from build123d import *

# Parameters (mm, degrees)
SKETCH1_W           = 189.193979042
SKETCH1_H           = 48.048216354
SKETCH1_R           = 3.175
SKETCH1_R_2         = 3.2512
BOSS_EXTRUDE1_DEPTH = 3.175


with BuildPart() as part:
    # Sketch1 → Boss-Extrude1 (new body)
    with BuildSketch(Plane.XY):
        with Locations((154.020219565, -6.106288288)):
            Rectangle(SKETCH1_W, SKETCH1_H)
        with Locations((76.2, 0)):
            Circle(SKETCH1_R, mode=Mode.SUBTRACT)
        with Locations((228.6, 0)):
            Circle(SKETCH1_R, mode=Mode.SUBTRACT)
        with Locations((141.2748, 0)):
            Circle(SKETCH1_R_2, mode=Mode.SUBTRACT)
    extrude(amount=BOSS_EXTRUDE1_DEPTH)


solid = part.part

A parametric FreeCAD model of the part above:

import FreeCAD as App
import Part
import Sketcher

V = App.Vector
Q = App.Units.Quantity

doc = App.newDocument("Part")
body = doc.addObject("PartDesign::Body", "Body")

# Sketch on XY plane
sketch1 = body.newObject("Sketcher::SketchObject", "Sketch")
sketch1.AttachmentSupport = (doc.getObject("XY_Plane"), [""])
sketch1.MapMode = "FlatFace"
sketch1.addGeometry([
    Part.LineSegment(V(59.4, 17.9, 0), V(59.4, -30.1, 0)),  # 0
    Part.LineSegment(V(59.4, -30.1, 0), V(248.6, -30.1, 0)),  # 1
    Part.LineSegment(V(248.6, -30.1, 0), V(248.6, 17.9, 0)),  # 2
    Part.LineSegment(V(248.6, 17.9, 0), V(59.4, 17.9, 0)),  # 3
    Part.Circle(V(76.2, 0, 0), V(0, 0, 1), 3.2),  # 4
    Part.Circle(V(141.3, 0, 0), V(0, 0, 1), 3.3),  # 5
    Part.Circle(V(228.6, 0, 0), V(0, 0, 1), 3.2),  # 6
], False)
sketch1.addConstraint([
    Sketcher.Constraint("Coincident", 0, 2, 1, 1),
    Sketcher.Constraint("Coincident", 1, 2, 2, 1),
    Sketcher.Constraint("Coincident", 2, 2, 3, 1),
    Sketcher.Constraint("Coincident", 3, 2, 0, 1),
    Sketcher.Constraint("Vertical", 0),
    Sketcher.Constraint("Horizontal", 1),
    Sketcher.Constraint("Vertical", 2),
    Sketcher.Constraint("Horizontal", 3),
    Sketcher.Constraint("Equal", 4, 6),
    Sketcher.Constraint("PointOnObject", 4, 3, -1),
    Sketcher.Constraint("PointOnObject", 5, 3, -1),
    Sketcher.Constraint("PointOnObject", 6, 3, -1),
    Sketcher.Constraint("Diameter", 4, Q("0.25 in")),
    Sketcher.Constraint("Diameter", 5, Q("0.256 in")),
    Sketcher.Constraint("DistanceX", -1, 1, 4, 3, Q("3 in")),
    Sketcher.Constraint("DistanceX", -1, 1, 6, 3, Q("9 in")),
    Sketcher.Constraint("DistanceX", -1, 1, 5, 3, Q("5.562 in")),
    Sketcher.Constraint("DistanceX", 1, 1, 1, 2, Q("189.193979 mm")),
    Sketcher.Constraint("DistanceY", 0, 2, 0, 1, Q("48.048216 mm")),
    Sketcher.Constraint("DistanceX", -1, 1, 0, 2, Q("59.42323 mm")),
    Sketcher.Constraint("DistanceY", -1, 1, 2, 2, Q("17.91782 mm")),
])
pad1 = body.newObject("PartDesign::Pad", "Pad")
pad1.Profile = sketch1
pad1.Length = Q("0.125 in")

doc.recompute()
